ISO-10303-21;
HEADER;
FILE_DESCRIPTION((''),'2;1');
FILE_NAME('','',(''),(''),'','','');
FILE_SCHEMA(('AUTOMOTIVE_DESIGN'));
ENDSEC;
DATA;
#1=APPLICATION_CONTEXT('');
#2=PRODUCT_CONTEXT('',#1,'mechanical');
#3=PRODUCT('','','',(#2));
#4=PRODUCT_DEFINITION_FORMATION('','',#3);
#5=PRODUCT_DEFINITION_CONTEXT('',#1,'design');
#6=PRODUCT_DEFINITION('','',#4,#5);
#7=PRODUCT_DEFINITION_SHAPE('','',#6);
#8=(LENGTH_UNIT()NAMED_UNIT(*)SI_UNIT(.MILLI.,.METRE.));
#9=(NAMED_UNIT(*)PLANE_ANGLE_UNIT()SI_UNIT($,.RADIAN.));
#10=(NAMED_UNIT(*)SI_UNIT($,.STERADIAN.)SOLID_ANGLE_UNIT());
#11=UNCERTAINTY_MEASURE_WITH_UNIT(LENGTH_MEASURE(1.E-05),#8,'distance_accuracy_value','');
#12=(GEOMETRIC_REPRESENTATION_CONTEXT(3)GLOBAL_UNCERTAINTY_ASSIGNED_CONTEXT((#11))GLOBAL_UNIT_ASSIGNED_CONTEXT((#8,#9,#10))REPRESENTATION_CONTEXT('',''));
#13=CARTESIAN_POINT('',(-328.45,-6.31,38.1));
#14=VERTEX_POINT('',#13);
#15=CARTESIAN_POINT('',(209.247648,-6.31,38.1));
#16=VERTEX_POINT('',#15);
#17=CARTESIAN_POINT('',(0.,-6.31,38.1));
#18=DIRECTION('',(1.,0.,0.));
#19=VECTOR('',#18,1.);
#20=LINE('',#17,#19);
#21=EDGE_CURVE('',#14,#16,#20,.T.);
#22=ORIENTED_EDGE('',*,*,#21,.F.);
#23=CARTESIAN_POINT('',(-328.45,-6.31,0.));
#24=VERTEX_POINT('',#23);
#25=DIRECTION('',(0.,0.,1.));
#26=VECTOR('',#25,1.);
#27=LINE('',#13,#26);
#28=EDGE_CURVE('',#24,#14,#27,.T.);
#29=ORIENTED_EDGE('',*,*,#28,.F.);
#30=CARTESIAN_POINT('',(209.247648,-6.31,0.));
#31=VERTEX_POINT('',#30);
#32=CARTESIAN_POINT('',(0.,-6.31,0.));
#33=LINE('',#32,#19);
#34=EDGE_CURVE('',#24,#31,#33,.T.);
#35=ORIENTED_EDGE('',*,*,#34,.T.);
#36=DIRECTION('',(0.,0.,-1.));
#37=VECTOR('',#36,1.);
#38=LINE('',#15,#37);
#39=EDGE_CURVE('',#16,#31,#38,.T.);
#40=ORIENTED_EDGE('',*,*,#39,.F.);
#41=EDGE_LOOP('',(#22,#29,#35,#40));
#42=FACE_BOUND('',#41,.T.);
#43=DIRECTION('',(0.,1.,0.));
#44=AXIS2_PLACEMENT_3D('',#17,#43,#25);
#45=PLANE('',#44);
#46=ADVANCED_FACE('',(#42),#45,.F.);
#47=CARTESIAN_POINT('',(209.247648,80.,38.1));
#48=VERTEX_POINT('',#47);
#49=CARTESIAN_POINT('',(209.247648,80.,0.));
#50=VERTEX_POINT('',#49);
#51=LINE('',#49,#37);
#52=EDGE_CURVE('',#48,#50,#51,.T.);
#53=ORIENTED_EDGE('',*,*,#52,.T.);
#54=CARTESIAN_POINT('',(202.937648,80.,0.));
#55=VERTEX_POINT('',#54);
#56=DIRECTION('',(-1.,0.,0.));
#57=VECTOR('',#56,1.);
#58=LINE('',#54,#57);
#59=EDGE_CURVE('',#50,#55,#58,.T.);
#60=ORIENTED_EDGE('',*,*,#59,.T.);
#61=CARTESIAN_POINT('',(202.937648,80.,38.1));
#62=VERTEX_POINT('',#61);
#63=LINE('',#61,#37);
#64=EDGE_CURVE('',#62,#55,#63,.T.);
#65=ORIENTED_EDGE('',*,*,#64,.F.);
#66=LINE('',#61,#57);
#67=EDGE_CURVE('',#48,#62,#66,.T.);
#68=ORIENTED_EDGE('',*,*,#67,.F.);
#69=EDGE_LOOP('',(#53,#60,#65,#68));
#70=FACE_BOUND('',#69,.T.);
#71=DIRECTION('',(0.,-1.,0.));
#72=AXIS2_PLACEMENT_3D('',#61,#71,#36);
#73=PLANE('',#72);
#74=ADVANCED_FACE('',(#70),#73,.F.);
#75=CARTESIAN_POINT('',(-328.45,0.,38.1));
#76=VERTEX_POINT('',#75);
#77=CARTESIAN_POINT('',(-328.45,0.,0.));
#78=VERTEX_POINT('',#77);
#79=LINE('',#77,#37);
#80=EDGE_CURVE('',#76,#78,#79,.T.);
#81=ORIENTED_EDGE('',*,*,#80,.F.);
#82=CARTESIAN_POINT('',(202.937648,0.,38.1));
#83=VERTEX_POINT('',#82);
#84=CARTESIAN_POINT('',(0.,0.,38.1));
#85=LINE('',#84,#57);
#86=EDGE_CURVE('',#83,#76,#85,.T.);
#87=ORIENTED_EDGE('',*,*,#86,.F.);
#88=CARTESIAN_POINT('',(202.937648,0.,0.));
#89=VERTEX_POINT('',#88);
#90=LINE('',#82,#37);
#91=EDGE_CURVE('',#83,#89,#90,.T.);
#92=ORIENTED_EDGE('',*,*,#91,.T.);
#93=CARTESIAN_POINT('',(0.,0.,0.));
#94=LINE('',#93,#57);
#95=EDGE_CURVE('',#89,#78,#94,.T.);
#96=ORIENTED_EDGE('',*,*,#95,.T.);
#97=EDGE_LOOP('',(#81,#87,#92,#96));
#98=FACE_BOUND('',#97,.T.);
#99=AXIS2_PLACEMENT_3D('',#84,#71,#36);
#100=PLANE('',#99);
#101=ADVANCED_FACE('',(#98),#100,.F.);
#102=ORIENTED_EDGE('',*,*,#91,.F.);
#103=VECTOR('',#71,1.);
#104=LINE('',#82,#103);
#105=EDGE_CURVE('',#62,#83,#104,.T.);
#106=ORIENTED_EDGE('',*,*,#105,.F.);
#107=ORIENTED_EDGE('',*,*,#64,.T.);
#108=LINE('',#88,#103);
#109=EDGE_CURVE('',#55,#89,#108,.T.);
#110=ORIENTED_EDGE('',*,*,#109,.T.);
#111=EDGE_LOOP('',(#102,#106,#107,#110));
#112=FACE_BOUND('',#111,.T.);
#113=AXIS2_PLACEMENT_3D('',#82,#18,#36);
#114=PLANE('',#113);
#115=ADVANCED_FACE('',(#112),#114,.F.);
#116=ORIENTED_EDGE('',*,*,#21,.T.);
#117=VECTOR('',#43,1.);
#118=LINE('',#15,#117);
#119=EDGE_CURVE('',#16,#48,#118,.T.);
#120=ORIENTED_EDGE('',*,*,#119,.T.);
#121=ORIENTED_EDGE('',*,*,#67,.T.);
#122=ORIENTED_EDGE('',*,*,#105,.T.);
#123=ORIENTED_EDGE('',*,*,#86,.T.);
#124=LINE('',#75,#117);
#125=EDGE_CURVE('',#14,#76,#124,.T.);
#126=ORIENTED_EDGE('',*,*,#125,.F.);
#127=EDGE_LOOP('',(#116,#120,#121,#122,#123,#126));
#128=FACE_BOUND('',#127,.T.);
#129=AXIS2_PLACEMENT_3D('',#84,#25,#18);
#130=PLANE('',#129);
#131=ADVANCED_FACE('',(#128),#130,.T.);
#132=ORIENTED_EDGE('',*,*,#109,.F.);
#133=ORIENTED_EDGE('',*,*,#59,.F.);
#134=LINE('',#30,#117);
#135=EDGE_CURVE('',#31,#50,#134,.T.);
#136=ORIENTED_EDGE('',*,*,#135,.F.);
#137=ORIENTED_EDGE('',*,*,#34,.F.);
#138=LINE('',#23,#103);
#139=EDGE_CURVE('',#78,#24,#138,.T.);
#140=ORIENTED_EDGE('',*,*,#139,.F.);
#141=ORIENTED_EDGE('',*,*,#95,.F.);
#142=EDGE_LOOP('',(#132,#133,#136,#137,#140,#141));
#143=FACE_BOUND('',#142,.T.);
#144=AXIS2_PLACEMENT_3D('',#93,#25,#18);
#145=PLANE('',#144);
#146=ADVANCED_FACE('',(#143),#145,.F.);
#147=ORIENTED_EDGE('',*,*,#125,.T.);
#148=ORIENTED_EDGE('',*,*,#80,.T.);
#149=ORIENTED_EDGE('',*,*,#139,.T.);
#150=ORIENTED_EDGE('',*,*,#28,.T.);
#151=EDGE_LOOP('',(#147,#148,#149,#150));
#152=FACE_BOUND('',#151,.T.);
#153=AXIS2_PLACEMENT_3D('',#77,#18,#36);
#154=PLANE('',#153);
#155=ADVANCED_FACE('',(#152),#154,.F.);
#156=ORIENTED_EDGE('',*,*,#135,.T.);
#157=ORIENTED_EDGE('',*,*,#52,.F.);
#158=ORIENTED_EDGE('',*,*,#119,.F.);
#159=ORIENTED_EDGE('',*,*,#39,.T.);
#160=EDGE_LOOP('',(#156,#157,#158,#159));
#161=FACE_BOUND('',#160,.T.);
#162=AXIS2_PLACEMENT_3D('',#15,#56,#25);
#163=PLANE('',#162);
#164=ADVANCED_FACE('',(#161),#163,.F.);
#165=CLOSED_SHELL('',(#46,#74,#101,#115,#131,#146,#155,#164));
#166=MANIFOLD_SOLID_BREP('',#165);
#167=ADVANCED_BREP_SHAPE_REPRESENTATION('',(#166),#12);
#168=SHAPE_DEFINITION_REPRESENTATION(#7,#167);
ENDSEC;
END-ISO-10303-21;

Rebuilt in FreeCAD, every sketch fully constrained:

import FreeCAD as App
import Part
import Sketcher
from FreeCAD import Vector
Q = App.Units.Quantity


def add_polygon(sketch, points):
    """Adds a closed chain of lines whose ends are joined by coincident constraints."""
    first, n = sketch.GeometryCount, len(points)
    for a, b in zip(points, points[1:] + points[:1]):
        sketch.addGeometry(Part.LineSegment(App.Vector(*a, 0), App.Vector(*b, 0)), False)
    for i in range(n):
        sketch.addConstraint(Sketcher.Constraint("Coincident", first + i, 2, first + (i + 1) % n, 1))

doc = App.newDocument("Part")
params = doc.addObject("Spreadsheet::Sheet", "Params")
for row, (alias, value) in enumerate([
    ("sketch1_height", "80 mm"),
    ("sketch1_height2", "6.31 mm"),
    ("pad1_length", "38.1 mm"),
    ("sketch2_height", "38.1 mm"),
    ("pocket1_length", "6.31 mm"),
    ("sketch3_height", "38.1 mm"),
    ("sketch3_width", "6.31 mm"),
    ("pad2_length", "328.45 mm"),
], start=1):
    params.set(f"A{row}", alias)
    params.set(f"B{row}", "=" + value)
    params.setAlias(f"B{row}", alias)

body = doc.addObject("PartDesign::Body", "Body")

sketch1 = doc.addObject("Sketcher::SketchObject", "Sketch")
body.addObject(sketch1)
sketch1.AttachmentSupport = (doc.XY_Plane, [""])
sketch1.MapMode = "FlatFace"
add_polygon(sketch1, [(202.937648, 0), (0, 0), (0, -6.31), (209.247648, -6.31), (209.247648, 73.69), (349.64, 73.69), (349.64, 80), (202.937648, 80)])
sketch1.addConstraint(Sketcher.Constraint("Horizontal", 0))
sketch1.addConstraint(Sketcher.Constraint("Vertical", 1))
sketch1.addConstraint(Sketcher.Constraint("Horizontal", 2))
sketch1.addConstraint(Sketcher.Constraint("Vertical", 3))
sketch1.addConstraint(Sketcher.Constraint("Horizontal", 4))
sketch1.addConstraint(Sketcher.Constraint("Vertical", 5))
sketch1.addConstraint(Sketcher.Constraint("Horizontal", 6))
sketch1.addConstraint(Sketcher.Constraint("Vertical", 7))
sketch1.addConstraint(Sketcher.Constraint("Coincident", 0, 2, -1, 1))
sketch1.addConstraint(Sketcher.Constraint("Equal", 1, 5))
sketch1.addConstraint(Sketcher.Constraint("DistanceY", 3, 1, 3, 2, Q("80 mm")))
sketch1.addConstraint(Sketcher.Constraint("DistanceY", 1, 2, 1, 1, Q("6.31 mm")))
sketch1.addConstraint(Sketcher.Constraint("DistanceX", -1, 1, 4, 2, Q("349.64 mm")))
sketch1.addConstraint(Sketcher.Constraint("DistanceX", 6, 2, 3, 2, Q("6.31 mm")))
sketch1.addConstraint(Sketcher.Constraint("DistanceX", 0, 2, 0, 1, Q("202.937648 mm")))
sketch1.setExpression("Constraints[18]", "Params.sketch1_height")
sketch1.setExpression("Constraints[19]", "Params.sketch1_height2")
pad1 = doc.addObject("PartDesign::Pad", "Pad")
body.addObject(pad1)
pad1.Profile = sketch1
pad1.setExpression("Length", "Params.pad1_length")

sketch2 = doc.addObject("Sketcher::SketchObject", "Sketch001")
body.addObject(sketch2)
sketch2.AttachmentSupport = (doc.XZ_Plane, [""])
sketch2.MapMode = "FlatFace"
sketch2.AttachmentOffset = App.Placement(Vector(0, 0, -73.69), App.Rotation())
add_polygon(sketch2, [(209.247648, 38.1), (209.247648, 0), (349.64, 0), (349.64, 38.1)])
sketch2.addConstraint(Sketcher.Constraint("Vertical", 0))
sketch2.addConstraint(Sketcher.Constraint("Horizontal", 1))
sketch2.addConstraint(Sketcher.Constraint("Vertical", 2))
sketch2.addConstraint(Sketcher.Constraint("Horizontal", 3))
sketch2.addConstraint(Sketcher.Constraint("PointOnObject", 0, 2, -1))
sketch2.addConstraint(Sketcher.Constraint("DistanceY", 0, 2, 0, 1, Q("38.1 mm")))
sketch2.addConstraint(Sketcher.Constraint("DistanceX", -1, 1, 1, 2, Q("349.64 mm")))
sketch2.addConstraint(Sketcher.Constraint("DistanceX", 1, 1, 1, 2, Q("140.392352 mm")))
sketch2.setExpression("Constraints[9]", "Params.sketch2_height")
pocket1 = doc.addObject("PartDesign::Pocket", "Pocket")
body.addObject(pocket1)
pocket1.Profile = sketch2
pocket1.setExpression("Length", "Params.pocket1_length")

sketch3 = doc.addObject("Sketcher::SketchObject", "Sketch002")
body.addObject(sketch3)
sketch3.AttachmentSupport = (doc.YZ_Plane, [""])
sketch3.MapMode = "FlatFace"
add_polygon(sketch3, [(0, 0), (-6.31, 0), (-6.31, 38.1), (0, 38.1)])
sketch3.addConstraint(Sketcher.Constraint("Horizontal", 0))
sketch3.addConstraint(Sketcher.Constraint("Vertical", 1))
sketch3.addConstraint(Sketcher.Constraint("Horizontal", 2))
sketch3.addConstraint(Sketcher.Constraint("Vertical", 3))
sketch3.addConstraint(Sketcher.Constraint("Coincident", 3, 2, -1, 1))
sketch3.addConstraint(Sketcher.Constraint("DistanceY", 1, 1, 1, 2, Q("38.1 mm")))
sketch3.addConstraint(Sketcher.Constraint("DistanceX", 0, 2, 0, 1, Q("6.31 mm")))
sketch3.setExpression("Constraints[9]", "Params.sketch3_height")
sketch3.setExpression("Constraints[10]", "Params.sketch3_width")
pad2 = doc.addObject("PartDesign::Pad", "Pad001")
body.addObject(pad2)
pad2.Profile = sketch3
pad2.setExpression("Length", "Params.pad2_length")
pad2.Reversed = True

doc.recompute()
